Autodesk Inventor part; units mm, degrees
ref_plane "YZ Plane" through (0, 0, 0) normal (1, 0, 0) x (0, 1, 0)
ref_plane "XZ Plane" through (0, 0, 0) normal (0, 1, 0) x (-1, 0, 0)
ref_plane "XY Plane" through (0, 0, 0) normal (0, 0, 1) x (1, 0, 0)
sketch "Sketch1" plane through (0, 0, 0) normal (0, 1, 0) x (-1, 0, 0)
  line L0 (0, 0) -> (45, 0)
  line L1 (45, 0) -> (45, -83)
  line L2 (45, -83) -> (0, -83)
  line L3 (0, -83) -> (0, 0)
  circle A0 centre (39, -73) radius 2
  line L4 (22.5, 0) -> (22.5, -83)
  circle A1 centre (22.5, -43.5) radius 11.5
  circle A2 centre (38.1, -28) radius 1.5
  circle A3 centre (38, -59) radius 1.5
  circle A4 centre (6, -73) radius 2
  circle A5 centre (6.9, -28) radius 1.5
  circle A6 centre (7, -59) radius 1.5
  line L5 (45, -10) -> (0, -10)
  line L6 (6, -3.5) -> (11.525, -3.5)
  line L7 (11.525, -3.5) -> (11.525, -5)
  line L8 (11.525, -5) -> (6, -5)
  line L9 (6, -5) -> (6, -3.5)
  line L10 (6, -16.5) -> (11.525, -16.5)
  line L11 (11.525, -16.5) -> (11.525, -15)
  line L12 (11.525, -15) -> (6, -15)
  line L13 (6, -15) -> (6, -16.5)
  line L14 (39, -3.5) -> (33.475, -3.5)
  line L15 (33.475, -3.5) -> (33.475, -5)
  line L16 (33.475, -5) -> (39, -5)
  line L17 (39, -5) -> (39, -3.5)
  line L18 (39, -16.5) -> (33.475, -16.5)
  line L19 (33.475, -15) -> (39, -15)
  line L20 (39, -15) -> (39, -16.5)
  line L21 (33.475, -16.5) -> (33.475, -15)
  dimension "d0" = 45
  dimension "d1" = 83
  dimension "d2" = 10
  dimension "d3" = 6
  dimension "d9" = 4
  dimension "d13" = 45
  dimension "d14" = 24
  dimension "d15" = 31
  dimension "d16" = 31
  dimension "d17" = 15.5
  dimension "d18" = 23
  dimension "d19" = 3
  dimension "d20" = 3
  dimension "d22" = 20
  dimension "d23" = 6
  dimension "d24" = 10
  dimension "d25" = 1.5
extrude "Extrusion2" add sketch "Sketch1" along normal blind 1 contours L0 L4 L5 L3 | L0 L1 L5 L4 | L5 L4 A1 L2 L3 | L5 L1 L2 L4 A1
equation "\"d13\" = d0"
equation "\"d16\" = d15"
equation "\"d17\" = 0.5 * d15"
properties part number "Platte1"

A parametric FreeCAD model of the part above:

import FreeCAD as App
import Part
import Sketcher
Q = App.Units.Quantity


def add_polygon(sketch, points):
    """Adds a closed chain of lines whose ends are joined by coincident constraints."""
    first, n = sketch.GeometryCount, len(points)
    for a, b in zip(points, points[1:] + points[:1]):
        sketch.addGeometry(Part.LineSegment(App.Vector(*a, 0), App.Vector(*b, 0)), False)
    for i in range(n):
        sketch.addConstraint(Sketcher.Constraint("Coincident", first + i, 2, first + (i + 1) % n, 1))

doc = App.newDocument("Part")
params = doc.addObject("Spreadsheet::Sheet", "Params")
for row, (alias, value) in enumerate([
    ("sketch1_diameter", "23 mm"),
    ("sketch1_diameter2", "4 mm"),
    ("sketch1_diameter3", "3 mm"),
    ("sketch1_width", "45 mm"),
    ("sketch1_height", "83 mm"),
    ("pad1_length", "1 mm"),
], start=1):
    params.set(f"A{row}", alias)
    params.set(f"B{row}", "=" + value)
    params.setAlias(f"B{row}", alias)

body = doc.addObject("PartDesign::Body", "Body")

# Sketch on XZ plane
sketch1 = doc.addObject("Sketcher::SketchObject", "Sketch")
body.addObject(sketch1)
sketch1.AttachmentSupport = (doc.XZ_Plane, [""])
sketch1.MapMode = "FlatFace"
add_polygon(sketch1, [(0, 0), (0, -83), (-45, -83), (-45, 0)])  # lines 0-3
add_polygon(sketch1, [(-6, -5), (-6, -3.5), (-11.5, -3.5), (-11.5, -5)])  # lines 4-7
add_polygon(sketch1, [(-39, -3.5), (-39, -5), (-33.5, -5), (-33.5, -3.5)])  # lines 8-11
add_polygon(sketch1, [(-6, -16.5), (-6, -15), (-11.5, -15), (-11.5, -16.5)])  # lines 12-15
sketch1.addGeometry(Part.Circle(App.Vector(-22.5, -43.5, 0), App.Vector(0, 0, 1), 11.5), False)  # 16
sketch1.addGeometry(Part.Circle(App.Vector(-6, -73, 0), App.Vector(0, 0, 1), 2), False)  # 17
sketch1.addGeometry(Part.Circle(App.Vector(-7, -59, 0), App.Vector(0, 0, 1), 1.5), False)  # 18
sketch1.addGeometry(Part.Circle(App.Vector(-6.9, -28, 0), App.Vector(0, 0, 1), 1.5), False)  # 19
add_polygon(sketch1, [(-39, -16.5), (-33.5, -16.5), (-33.5, -15), (-39, -15)])  # lines 20-23
sketch1.addGeometry(Part.Circle(App.Vector(-39, -73, 0), App.Vector(0, 0, 1), 2), False)  # 24
sketch1.addGeometry(Part.Circle(App.Vector(-38, -59, 0), App.Vector(0, 0, 1), 1.5), False)  # 25
sketch1.addGeometry(Part.Circle(App.Vector(-38.1, -28, 0), App.Vector(0, 0, 1), 1.5), False)  # 26
sketch1.addConstraint(Sketcher.Constraint("Vertical", 0))
sketch1.addConstraint(Sketcher.Constraint("Horizontal", 1))
sketch1.addConstraint(Sketcher.Constraint("Vertical", 2))
sketch1.addConstraint(Sketcher.Constraint("Horizontal", 3))
sketch1.addConstraint(Sketcher.Constraint("Vertical", 4))
sketch1.addConstraint(Sketcher.Constraint("Horizontal", 5))
sketch1.addConstraint(Sketcher.Constraint("Vertical", 6))
sketch1.addConstraint(Sketcher.Constraint("Horizontal", 7))
sketch1.addConstraint(Sketcher.Constraint("Vertical", 8))
sketch1.addConstraint(Sketcher.Constraint("Horizontal", 9))
sketch1.addConstraint(Sketcher.Constraint("Vertical", 10))
sketch1.addConstraint(Sketcher.Constraint("Horizontal", 11))
sketch1.addConstraint(Sketcher.Constraint("Vertical", 12))
sketch1.addConstraint(Sketcher.Constraint("Horizontal", 13))
sketch1.addConstraint(Sketcher.Constraint("Vertical", 14))
sketch1.addConstraint(Sketcher.Constraint("Horizontal", 15))
sketch1.addConstraint(Sketcher.Constraint("Horizontal", 20))
sketch1.addConstraint(Sketcher.Constraint("Vertical", 21))
sketch1.addConstraint(Sketcher.Constraint("Horizontal", 22))
sketch1.addConstraint(Sketcher.Constraint("Vertical", 23))
sketch1.addConstraint(Sketcher.Constraint("Coincident", 3, 2, -1, 1))
sketch1.addConstraint(Sketcher.Constraint("Equal", 18, 19))
sketch1.addConstraint(Sketcher.Constraint("Equal", 17, 24))
sketch1.addConstraint(Sketcher.Constraint("Equal", 19, 25))
sketch1.addConstraint(Sketcher.Constraint("Equal", 25, 26))
sketch1.addConstraint(Sketcher.Constraint("Horizontal", 17, 3, 24, 3))
sketch1.addConstraint(Sketcher.Constraint("Horizontal", 18, 3, 25, 3))
sketch1.addConstraint(Sketcher.Constraint("Horizontal", 19, 3, 26, 3))
sketch1.addConstraint(Sketcher.Constraint("Horizontal", 7, 2, 8, 2))
sketch1.addConstraint(Sketcher.Constraint("Horizontal", 5, 2, 10, 2))
sketch1.addConstraint(Sketcher.Constraint("Horizontal", 15, 2, 20, 2))
sketch1.addConstraint(Sketcher.Constraint("Horizontal", 13, 2, 21, 2))
sketch1.addConstraint(Sketcher.Constraint("Vertical", 17, 3, 4, 2))
sketch1.addConstraint(Sketcher.Constraint("Vertical", 24, 3, 8, 2))
sketch1.addConstraint(Sketcher.Constraint("Vertical", 7, 2, 12, 2))
sketch1.addConstraint(Sketcher.Constraint("Vertical", 6, 2, 13, 2))
sketch1.addConstraint(Sketcher.Constraint("Vertical", 10, 2, 20, 2))
sketch1.addConstraint(Sketcher.Constraint("Vertical", 11, 2, 22, 2))
sketch1.addConstraint(Sketcher.Constraint("Equal", 7, 9))
sketch1.addConstraint(Sketcher.Constraint("Equal", 10, 12))
sketch1.addConstraint(Sketcher.Constraint("Diameter", 16, Q("23 mm")))
sketch1.addConstraint(Sketcher.Constraint("Diameter", 17, Q("4 mm")))
sketch1.addConstraint(Sketcher.Constraint("Diameter", 18, Q("3 mm")))
sketch1.addConstraint(Sketcher.Constraint("DistanceX", 1, 2, 1, 1, Q("45 mm")))
sketch1.addConstraint(Sketcher.Constraint("DistanceY", 0, 2, 0, 1, Q("83 mm")))
sketch1.addConstraint(Sketcher.Constraint("DistanceY", 4, 1, 4, 2, Q("1.5 mm")))
sketch1.addConstraint(Sketcher.Constraint("DistanceX", 17, 3, -1, 1, Q("6 mm")))
sketch1.addConstraint(Sketcher.Constraint("DistanceY", 18, 3, 19, 3, Q("31 mm")))
sketch1.addConstraint(Sketcher.Constraint("DistanceY", 17, 3, 19, 3, Q("45 mm")))
sketch1.addConstraint(Sketcher.Constraint("DistanceX", 25, 3, 18, 3, Q("31 mm")))
sketch1.addConstraint(Sketcher.Constraint("DistanceY", 0, 2, 17, 3, Q("10 mm")))
sketch1.addConstraint(Sketcher.Constraint("DistanceX", 1, 2, 24, 3, Q("6 mm")))
sketch1.addConstraint(Sketcher.Constraint("DistanceY", 19, 3, 6, 2, Q("23 mm")))
sketch1.addConstraint(Sketcher.Constraint("DistanceY", 12, 2, 7, 2, Q("10 mm")))
sketch1.addConstraint(Sketcher.Constraint("DistanceX", 16, 3, 18, 3, Q("15.5 mm")))
sketch1.addConstraint(Sketcher.Constraint("DistanceY", 18, 3, 16, 3, Q("15.5 mm")))
sketch1.addConstraint(Sketcher.Constraint("DistanceX", 18, 3, -1, 1, Q("7 mm")))
sketch1.addConstraint(Sketcher.Constraint("DistanceX", 19, 3, -1, 1, Q("6.9 mm")))
sketch1.addConstraint(Sketcher.Constraint("DistanceX", 26, 3, -1, 1, Q("38.1 mm")))
sketch1.addConstraint(Sketcher.Constraint("DistanceX", 5, 2, 5, 1, Q("5.525 mm")))
sketch1.setExpression("Constraints[60]", "Params.sketch1_diameter")
sketch1.setExpression("Constraints[61]", "Params.sketch1_diameter2")
sketch1.setExpression("Constraints[62]", "Params.sketch1_diameter3")
sketch1.setExpression("Constraints[63]", "Params.sketch1_width")
sketch1.setExpression("Constraints[64]", "Params.sketch1_height")
pad1 = doc.addObject("PartDesign::Pad", "Pad")
body.addObject(pad1)
pad1.Profile = sketch1
pad1.setExpression("Length", "Params.pad1_length")
pad1.Reversed = True

doc.recompute()
